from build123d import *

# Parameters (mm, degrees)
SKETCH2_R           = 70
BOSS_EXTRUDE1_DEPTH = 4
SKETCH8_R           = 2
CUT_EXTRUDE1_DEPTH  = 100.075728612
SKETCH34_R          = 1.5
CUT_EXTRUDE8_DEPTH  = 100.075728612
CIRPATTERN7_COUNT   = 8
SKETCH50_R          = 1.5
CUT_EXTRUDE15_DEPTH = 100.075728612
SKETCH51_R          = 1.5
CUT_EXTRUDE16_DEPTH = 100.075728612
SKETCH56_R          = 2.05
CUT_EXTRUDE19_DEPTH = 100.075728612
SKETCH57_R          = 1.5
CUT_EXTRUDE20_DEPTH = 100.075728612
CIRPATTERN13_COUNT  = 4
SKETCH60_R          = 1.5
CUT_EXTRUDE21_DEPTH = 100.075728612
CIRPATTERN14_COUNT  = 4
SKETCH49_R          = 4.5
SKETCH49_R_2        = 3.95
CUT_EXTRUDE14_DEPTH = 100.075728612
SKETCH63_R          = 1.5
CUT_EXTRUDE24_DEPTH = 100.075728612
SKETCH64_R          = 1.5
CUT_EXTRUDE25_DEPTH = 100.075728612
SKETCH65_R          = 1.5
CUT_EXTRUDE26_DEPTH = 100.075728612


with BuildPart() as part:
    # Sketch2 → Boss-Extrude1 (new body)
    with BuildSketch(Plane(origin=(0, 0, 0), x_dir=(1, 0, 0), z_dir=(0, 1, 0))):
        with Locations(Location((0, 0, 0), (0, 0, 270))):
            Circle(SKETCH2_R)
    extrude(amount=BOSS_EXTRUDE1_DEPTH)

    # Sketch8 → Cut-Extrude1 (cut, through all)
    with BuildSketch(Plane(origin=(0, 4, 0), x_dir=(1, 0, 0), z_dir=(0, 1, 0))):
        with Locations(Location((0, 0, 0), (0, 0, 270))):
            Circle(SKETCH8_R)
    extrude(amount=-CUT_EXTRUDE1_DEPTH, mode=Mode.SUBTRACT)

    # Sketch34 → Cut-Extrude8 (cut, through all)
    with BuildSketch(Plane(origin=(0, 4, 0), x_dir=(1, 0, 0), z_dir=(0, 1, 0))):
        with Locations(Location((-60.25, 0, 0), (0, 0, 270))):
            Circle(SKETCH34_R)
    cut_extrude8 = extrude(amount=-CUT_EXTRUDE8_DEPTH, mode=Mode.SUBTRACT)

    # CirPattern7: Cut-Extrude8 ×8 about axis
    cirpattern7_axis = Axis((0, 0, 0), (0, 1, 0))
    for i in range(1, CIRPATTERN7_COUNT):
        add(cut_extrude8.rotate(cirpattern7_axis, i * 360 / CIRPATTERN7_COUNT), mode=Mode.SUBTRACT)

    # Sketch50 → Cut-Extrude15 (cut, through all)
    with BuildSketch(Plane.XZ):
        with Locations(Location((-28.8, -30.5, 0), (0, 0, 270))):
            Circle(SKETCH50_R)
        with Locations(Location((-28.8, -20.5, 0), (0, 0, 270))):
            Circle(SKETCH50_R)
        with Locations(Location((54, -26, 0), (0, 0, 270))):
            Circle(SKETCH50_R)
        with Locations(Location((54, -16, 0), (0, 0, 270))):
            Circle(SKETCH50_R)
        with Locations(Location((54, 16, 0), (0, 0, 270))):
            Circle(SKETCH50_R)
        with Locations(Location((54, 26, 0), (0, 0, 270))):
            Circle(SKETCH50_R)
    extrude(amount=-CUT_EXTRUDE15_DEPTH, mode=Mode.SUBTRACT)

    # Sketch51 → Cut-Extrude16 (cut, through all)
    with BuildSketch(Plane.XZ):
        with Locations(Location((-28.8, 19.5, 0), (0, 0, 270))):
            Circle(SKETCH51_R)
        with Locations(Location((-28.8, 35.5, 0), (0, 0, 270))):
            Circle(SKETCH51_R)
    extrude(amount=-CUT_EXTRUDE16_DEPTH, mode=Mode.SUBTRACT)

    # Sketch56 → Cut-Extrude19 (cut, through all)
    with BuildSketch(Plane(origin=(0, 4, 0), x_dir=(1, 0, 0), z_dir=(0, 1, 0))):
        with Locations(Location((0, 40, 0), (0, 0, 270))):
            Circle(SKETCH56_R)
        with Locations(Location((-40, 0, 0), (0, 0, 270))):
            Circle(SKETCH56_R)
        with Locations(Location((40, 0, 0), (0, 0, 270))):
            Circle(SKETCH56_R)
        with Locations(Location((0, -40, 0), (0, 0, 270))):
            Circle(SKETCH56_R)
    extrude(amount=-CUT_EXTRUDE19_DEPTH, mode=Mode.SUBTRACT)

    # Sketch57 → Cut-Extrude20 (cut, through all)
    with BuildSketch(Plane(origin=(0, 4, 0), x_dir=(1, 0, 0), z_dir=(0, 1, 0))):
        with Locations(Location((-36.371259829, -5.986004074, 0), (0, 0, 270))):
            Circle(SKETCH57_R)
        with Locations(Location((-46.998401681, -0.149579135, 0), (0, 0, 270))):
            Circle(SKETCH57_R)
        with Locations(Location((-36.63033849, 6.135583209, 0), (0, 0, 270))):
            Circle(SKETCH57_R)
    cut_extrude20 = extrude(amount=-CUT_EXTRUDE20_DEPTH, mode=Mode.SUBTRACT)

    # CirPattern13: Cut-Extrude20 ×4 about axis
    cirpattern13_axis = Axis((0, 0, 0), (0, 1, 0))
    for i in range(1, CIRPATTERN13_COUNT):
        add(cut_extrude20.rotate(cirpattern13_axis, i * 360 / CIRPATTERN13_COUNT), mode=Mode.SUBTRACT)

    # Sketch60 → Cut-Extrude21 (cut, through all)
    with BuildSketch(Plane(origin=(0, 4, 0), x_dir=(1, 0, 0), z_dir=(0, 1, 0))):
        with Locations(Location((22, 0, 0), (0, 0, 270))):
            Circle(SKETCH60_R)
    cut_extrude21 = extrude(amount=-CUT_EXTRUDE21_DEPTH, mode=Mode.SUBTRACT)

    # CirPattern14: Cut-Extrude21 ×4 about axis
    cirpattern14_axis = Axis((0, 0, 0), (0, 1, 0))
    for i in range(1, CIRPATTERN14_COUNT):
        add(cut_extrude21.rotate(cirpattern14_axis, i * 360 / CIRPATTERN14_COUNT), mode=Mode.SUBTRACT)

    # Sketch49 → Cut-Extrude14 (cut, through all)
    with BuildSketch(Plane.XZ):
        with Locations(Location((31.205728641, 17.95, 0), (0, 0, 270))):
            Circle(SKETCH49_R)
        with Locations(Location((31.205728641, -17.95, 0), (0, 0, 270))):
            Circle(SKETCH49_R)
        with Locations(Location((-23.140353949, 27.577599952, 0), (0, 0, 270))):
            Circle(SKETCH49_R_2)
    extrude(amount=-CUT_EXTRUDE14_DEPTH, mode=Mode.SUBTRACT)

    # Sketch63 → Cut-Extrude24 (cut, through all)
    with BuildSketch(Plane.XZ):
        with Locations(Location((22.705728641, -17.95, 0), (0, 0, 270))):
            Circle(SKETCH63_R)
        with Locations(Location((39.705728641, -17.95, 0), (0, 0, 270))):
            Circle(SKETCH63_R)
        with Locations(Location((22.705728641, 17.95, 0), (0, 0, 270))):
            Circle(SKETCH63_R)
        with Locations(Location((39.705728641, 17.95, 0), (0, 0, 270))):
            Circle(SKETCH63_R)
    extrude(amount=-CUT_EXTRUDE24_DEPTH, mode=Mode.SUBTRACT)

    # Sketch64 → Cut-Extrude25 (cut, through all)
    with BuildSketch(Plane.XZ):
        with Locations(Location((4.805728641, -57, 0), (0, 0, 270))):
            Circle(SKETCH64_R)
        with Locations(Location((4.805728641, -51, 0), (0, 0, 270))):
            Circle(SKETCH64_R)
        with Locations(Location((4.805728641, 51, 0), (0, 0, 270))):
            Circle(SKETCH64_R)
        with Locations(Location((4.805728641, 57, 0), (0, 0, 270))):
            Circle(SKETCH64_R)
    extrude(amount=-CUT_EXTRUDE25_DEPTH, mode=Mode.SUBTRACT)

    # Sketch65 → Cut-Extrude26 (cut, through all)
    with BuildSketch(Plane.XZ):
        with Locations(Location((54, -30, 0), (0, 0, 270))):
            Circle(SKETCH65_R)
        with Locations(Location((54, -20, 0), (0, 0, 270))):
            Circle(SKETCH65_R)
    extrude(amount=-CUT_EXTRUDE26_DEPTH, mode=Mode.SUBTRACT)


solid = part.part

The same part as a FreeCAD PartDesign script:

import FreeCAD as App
import Part
import Sketcher
from FreeCAD import Vector
Q = App.Units.Quantity

doc = App.newDocument("Part")
body = doc.addObject("PartDesign::Body", "Body")

# Sketch on XZ plane
sketch1 = body.newObject("Sketcher::SketchObject", "Sketch")
sketch1.AttachmentSupport = (doc.getObject("XZ_Plane"), [""])
sketch1.MapMode = "FlatFace"
sketch1.addGeometry(Part.Circle(Vector(0, 0, 0), Vector(0, 0, 1), 70), False)
sketch1.addConstraint(Sketcher.Constraint("Coincident", 0, 3, -1, 1))
sketch1.addConstraint(Sketcher.Constraint("Diameter", 0, Q("140 mm")))
pad1 = body.newObject("PartDesign::Pad", "Pad")
pad1.Profile = sketch1
pad1.Length = 4
pad1.Reversed = True

# Sketch on XZ plane
sketch2 = body.newObject("Sketcher::SketchObject", "Sketch001")
sketch2.AttachmentSupport = (doc.getObject("XZ_Plane"), [""])
sketch2.MapMode = "FlatFace"
sketch2.AttachmentOffset = App.Placement(Vector(0, 0, -4), App.Rotation())
sketch2.addGeometry(Part.Circle(Vector(0, 0, 0), Vector(0, 0, 1), 2), False)
sketch2.addConstraint(Sketcher.Constraint("Coincident", 0, 3, -1, 1))
sketch2.addConstraint(Sketcher.Constraint("Diameter", 0, Q("4 mm")))
pocket1 = body.newObject("PartDesign::Pocket", "Pocket")
pocket1.Profile = sketch2
pocket1.Type = "ThroughAll"
pocket1.Reversed = True

# Sketch on XZ plane
sketch3 = body.newObject("Sketcher::SketchObject", "Sketch002")
sketch3.AttachmentSupport = (doc.getObject("XZ_Plane"), [""])
sketch3.MapMode = "FlatFace"
sketch3.AttachmentOffset = App.Placement(Vector(0, 0, -4), App.Rotation())
sketch3.addGeometry(Part.Circle(Vector(-60.25, 0, 0), Vector(0, 0, 1), 1.5), False)
sketch3.addConstraint(Sketcher.Constraint("PointOnObject", 0, 3, -1))
sketch3.addConstraint(Sketcher.Constraint("Diameter", 0, Q("3 mm")))
sketch3.addConstraint(Sketcher.Constraint("DistanceX", 0, 3, -1, 1, Q("60.25 mm")))
pocket2 = body.newObject("PartDesign::Pocket", "Pocket001")
pocket2.Profile = sketch3
pocket2.Type = "ThroughAll"
pocket2.Reversed = True
doc.recompute()

polarpattern = body.newObject("PartDesign::PolarPattern", "PolarPattern")
polarpattern.Originals = [pocket2]
polarpattern.Axis = (doc.getObject("Y_Axis"), [""])
polarpattern.Angle = 360
polarpattern.Occurrences = 8
body.Tip = polarpattern

# Sketch on XZ plane
sketch4 = body.newObject("Sketcher::SketchObject", "Sketch003")
sketch4.AttachmentSupport = (doc.getObject("XZ_Plane"), [""])
sketch4.MapMode = "FlatFace"
sketch4.addGeometry(Part.Circle(Vector(-28.8, -30.5, 0), Vector(0, 0, 1), 1.5), False)
sketch4.addGeometry(Part.Circle(Vector(-28.8, -20.5, 0), Vector(0, 0, 1), 1.5), False)
sketch4.addGeometry(Part.Circle(Vector(54, -26, 0), Vector(0, 0, 1), 1.5), False)
sketch4.addGeometry(Part.Circle(Vector(54, -16, 0), Vector(0, 0, 1), 1.5), False)
sketch4.addGeometry(Part.Circle(Vector(54, 16, 0), Vector(0, 0, 1), 1.5), False)
sketch4.addGeometry(Part.Circle(Vector(54, 26, 0), Vector(0, 0, 1), 1.5), False)
sketch4.addConstraint(Sketcher.Constraint("Equal", 0, 1))
sketch4.addConstraint(Sketcher.Constraint("Equal", 1, 2))
sketch4.addConstraint(Sketcher.Constraint("Equal", 2, 3))
sketch4.addConstraint(Sketcher.Constraint("Equal", 3, 4))
sketch4.addConstraint(Sketcher.Constraint("Equal", 4, 5))
sketch4.addConstraint(Sketcher.Constraint("Symmetric", 3, 3, 4, 3, -1))
sketch4.addConstraint(Sketcher.Constraint("Symmetric", 2, 3, 5, 3, -1))
sketch4.addConstraint(Sketcher.Constraint("Vertical", 0, 3, 1, 3))
sketch4.addConstraint(Sketcher.Constraint("Vertical", 2, 3, 3, 3))
sketch4.addConstraint(Sketcher.Constraint("Diameter", 0, Q("3 mm")))
sketch4.addConstraint(Sketcher.Constraint("DistanceX", -1, 1, 2, 3, Q("54 mm")))
sketch4.addConstraint(Sketcher.Constraint("DistanceY", 2, 3, -1, 1, Q("26 mm")))
sketch4.addConstraint(Sketcher.Constraint("DistanceY", 3, 3, -1, 1, Q("16 mm")))
sketch4.addConstraint(Sketcher.Constraint("DistanceY", 0, 3, 1, 3, Q("10 mm")))
sketch4.addConstraint(Sketcher.Constraint("DistanceX", 0, 3, -1, 1, Q("28.8 mm")))
sketch4.addConstraint(Sketcher.Constraint("DistanceY", 0, 3, -1, 1, Q("30.5 mm")))
pocket3 = body.newObject("PartDesign::Pocket", "Pocket002")
pocket3.Profile = sketch4
pocket3.Type = "ThroughAll"

# Sketch on XZ plane
sketch5 = body.newObject("Sketcher::SketchObject", "Sketch004")
sketch5.AttachmentSupport = (doc.getObject("XZ_Plane"), [""])
sketch5.MapMode = "FlatFace"
sketch5.addGeometry(Part.Circle(Vector(-28.8, 19.5, 0), Vector(0, 0, 1), 1.5), False)
sketch5.addGeometry(Part.Circle(Vector(-28.8, 35.5, 0), Vector(0, 0, 1), 1.5), False)
sketch5.addConstraint(Sketcher.Constraint("Equal", 0, 1))
sketch5.addConstraint(Sketcher.Constraint("Vertical", 0, 3, 1, 3))
sketch5.addConstraint(Sketcher.Constraint("Diameter", 0, Q("3 mm")))
sketch5.addConstraint(Sketcher.Constraint("DistanceY", 0, 3, 1, 3, Q("16 mm")))
sketch5.addConstraint(Sketcher.Constraint("DistanceX", 0, 3, -1, 1, Q("28.8 mm")))
sketch5.addConstraint(Sketcher.Constraint("DistanceY", -1, 1, 0, 3, Q("19.5 mm")))
pocket4 = body.newObject("PartDesign::Pocket", "Pocket003")
pocket4.Profile = sketch5
pocket4.Type = "ThroughAll"

# Sketch on XZ plane
sketch6 = body.newObject("Sketcher::SketchObject", "Sketch005")
sketch6.AttachmentSupport = (doc.getObject("XZ_Plane"), [""])
sketch6.MapMode = "FlatFace"
sketch6.AttachmentOffset = App.Placement(Vector(0, 0, -4), App.Rotation())
sketch6.addGeometry(Part.Circle(Vector(0, -40, 0), Vector(0, 0, 1), 2.05), False)
sketch6.addGeometry(Part.Circle(Vector(-40, 0, 0), Vector(0, 0, 1), 2.05), False)
sketch6.addGeometry(Part.Circle(Vector(40, 0, 0), Vector(0, 0, 1), 2.05), False)
sketch6.addGeometry(Part.Circle(Vector(0, 40, 0), Vector(0, 0, 1), 2.05), False)
sketch6.addConstraint(Sketcher.Constraint("Equal", 0, 1))
sketch6.addConstraint(Sketcher.Constraint("Equal", 1, 2))
sketch6.addConstraint(Sketcher.Constraint("Equal", 2, 3))
sketch6.addConstraint(Sketcher.Constraint("Symmetric", 1, 3, 2, 3, -1, 1))
sketch6.addConstraint(Sketcher.Constraint("Symmetric", 0, 3, 3, 3, -1, 1))
sketch6.addConstraint(Sketcher.Constraint("PointOnObject", 0, 3, -2))
sketch6.addConstraint(Sketcher.Constraint("PointOnObject", 1, 3, -1))
sketch6.addConstraint(Sketcher.Constraint("Diameter", 0, Q("4.1 mm")))
sketch6.addConstraint(Sketcher.Constraint("DistanceY", 0, 3, -1, 1, Q("40 mm")))
sketch6.addConstraint(Sketcher.Constraint("DistanceX", 1, 3, -1, 1, Q("40 mm")))
pocket5 = body.newObject("PartDesign::Pocket", "Pocket004")
pocket5.Profile = sketch6
pocket5.Type = "ThroughAll"
pocket5.Reversed = True

# Sketch on XZ plane
sketch7 = body.newObject("Sketcher::SketchObject", "Sketch006")
sketch7.AttachmentSupport = (doc.getObject("XZ_Plane"), [""])
sketch7.MapMode = "FlatFace"
sketch7.AttachmentOffset = App.Placement(Vector(0, 0, -4), App.Rotation())
sketch7.addGeometry(Part.Circle(Vector(-36.37126, 5.986004, 0), Vector(0, 0, 1), 1.5), False)
sketch7.addGeometry(Part.Circle(Vector(-46.998402, 0.149579, 0), Vector(0, 0, 1), 1.5), False)
sketch7.addGeometry(Part.Circle(Vector(-36.630338, -6.135583, 0), Vector(0, 0, 1), 1.5), False)
sketch7.addConstraint(Sketcher.Constraint("Equal", 0, 1))
sketch7.addConstraint(Sketcher.Constraint("Equal", 1, 2))
sketch7.addConstraint(Sketcher.Constraint("Diameter", 0, Q("3 mm")))
sketch7.addConstraint(Sketcher.Constraint("DistanceX", 1, 3, -1, 1, Q("46.998402 mm")))
sketch7.addConstraint(Sketcher.Constraint("DistanceX", 0, 3, -1, 1, Q("36.37126 mm")))
sketch7.addConstraint(Sketcher.Constraint("DistanceY", -1, 1, 1, 3, Q("0.149579 mm")))
sketch7.addConstraint(Sketcher.Constraint("DistanceX", 2, 3, -1, 1, Q("36.630338 mm")))
sketch7.addConstraint(Sketcher.Constraint("DistanceY", -1, 1, 0, 3, Q("5.986004 mm")))
sketch7.addConstraint(Sketcher.Constraint("DistanceY", 2, 3, -1, 1, Q("6.135583 mm")))
pocket6 = body.newObject("PartDesign::Pocket", "Pocket005")
pocket6.Profile = sketch7
pocket6.Type = "ThroughAll"
pocket6.Reversed = True
doc.recompute()

polarpattern2 = body.newObject("PartDesign::PolarPattern", "PolarPattern001")
polarpattern2.Originals = [pocket6]
polarpattern2.Axis = (doc.getObject("Y_Axis"), [""])
polarpattern2.Angle = 360
polarpattern2.Occurrences = 4
body.Tip = polarpattern2

# Sketch on XZ plane
sketch8 = body.newObject("Sketcher::SketchObject", "Sketch007")
sketch8.AttachmentSupport = (doc.getObject("XZ_Plane"), [""])
sketch8.MapMode = "FlatFace"
sketch8.AttachmentOffset = App.Placement(Vector(0, 0, -4), App.Rotation())
sketch8.addGeometry(Part.Circle(Vector(22, 0, 0), Vector(0, 0, 1), 1.5), False)
sketch8.addConstraint(Sketcher.Constraint("PointOnObject", 0, 3, -1))
sketch8.addConstraint(Sketcher.Constraint("Diameter", 0, Q("3 mm")))
sketch8.addConstraint(Sketcher.Constraint("DistanceX", -1, 1, 0, 3, Q("22 mm")))
pocket7 = body.newObject("PartDesign::Pocket", "Pocket006")
pocket7.Profile = sketch8
pocket7.Type = "ThroughAll"
pocket7.Reversed = True
doc.recompute()

polarpattern3 = body.newObject("PartDesign::PolarPattern", "PolarPattern002")
polarpattern3.Originals = [pocket7]
polarpattern3.Axis = (doc.getObject("Y_Axis"), [""])
polarpattern3.Angle = 360
polarpattern3.Occurrences = 4
body.Tip = polarpattern3

# Sketch on XZ plane
sketch9 = body.newObject("Sketcher::SketchObject", "Sketch008")
sketch9.AttachmentSupport = (doc.getObject("XZ_Plane"), [""])
sketch9.MapMode = "FlatFace"
sketch9.addGeometry(Part.Circle(Vector(31.205729, 17.95, 0), Vector(0, 0, 1), 4.5), False)
sketch9.addGeometry(Part.Circle(Vector(31.205729, -17.95, 0), Vector(0, 0, 1), 4.5), False)
sketch9.addGeometry(Part.Circle(Vector(-23.140354, 27.5776, 0), Vector(0, 0, 1), 3.95), False)
sketch9.addConstraint(Sketcher.Constraint("Equal", 0, 1))
sketch9.addConstraint(Sketcher.Constraint("Symmetric", 0, 3, 1, 3, -1))
sketch9.addConstraint(Sketcher.Constraint("Diameter", 0, Q("9 mm")))
sketch9.addConstraint(Sketcher.Constraint("Diameter", 2, Q("7.9 mm")))
sketch9.addConstraint(Sketcher.Constraint("DistanceY", 1, 3, 0, 3, Q("35.9 mm")))
sketch9.addConstraint(Sketcher.Constraint("DistanceY", -1, 1, 2, 3, Q("27.5776 mm")))
sketch9.addConstraint(Sketcher.Constraint("DistanceX", -1, 1, 0, 3, Q("31.205729 mm")))
sketch9.addConstraint(Sketcher.Constraint("DistanceX", 2, 3, -1, 1, Q("23.140354 mm")))
pocket8 = body.newObject("PartDesign::Pocket", "Pocket007")
pocket8.Profile = sketch9
pocket8.Type = "ThroughAll"

# Sketch on XZ plane
sketch10 = body.newObject("Sketcher::SketchObject", "Sketch009")
sketch10.AttachmentSupport = (doc.getObject("XZ_Plane"), [""])
sketch10.MapMode = "FlatFace"
sketch10.addGeometry(Part.Circle(Vector(22.705729, -17.95, 0), Vector(0, 0, 1), 1.5), False)
sketch10.addGeometry(Part.Circle(Vector(39.705729, -17.95, 0), Vector(0, 0, 1), 1.5), False)
sketch10.addGeometry(Part.Circle(Vector(22.705729, 17.95, 0), Vector(0, 0, 1), 1.5), False)
sketch10.addGeometry(Part.Circle(Vector(39.705729, 17.95, 0), Vector(0, 0, 1), 1.5), False)
sketch10.addConstraint(Sketcher.Constraint("Equal", 0, 1))
sketch10.addConstraint(Sketcher.Constraint("Equal", 1, 2))
sketch10.addConstraint(Sketcher.Constraint("Equal", 2, 3))
sketch10.addConstraint(Sketcher.Constraint("Symmetric", 0, 3, 2, 3, -1))
sketch10.addConstraint(Sketcher.Constraint("Symmetric", 1, 3, 3, 3, -1))
sketch10.addConstraint(Sketcher.Constraint("Horizontal", 0, 3, 1, 3))
sketch10.addConstraint(Sketcher.Constraint("Diameter", 0, Q("3 mm")))
sketch10.addConstraint(Sketcher.Constraint("DistanceX", 0, 3, 1, 3, Q("17 mm")))
sketch10.addConstraint(Sketcher.Constraint("DistanceY", 0, 3, 2, 3, Q("35.9 mm")))
sketch10.addConstraint(Sketcher.Constraint("DistanceX", -1, 1, 0, 3, Q("22.705729 mm")))
pocket9 = body.newObject("PartDesign::Pocket", "Pocket008")
pocket9.Profile = sketch10
pocket9.Type = "ThroughAll"

# Sketch on XZ plane
sketch11 = body.newObject("Sketcher::SketchObject", "Sketch010")
sketch11.AttachmentSupport = (doc.getObject("XZ_Plane"), [""])
sketch11.MapMode = "FlatFace"
sketch11.addGeometry(Part.Circle(Vector(4.805729, -57, 0), Vector(0, 0, 1), 1.5), False)
sketch11.addGeometry(Part.Circle(Vector(4.805729, -51, 0), Vector(0, 0, 1), 1.5), False)
sketch11.addGeometry(Part.Circle(Vector(4.805729, 51, 0), Vector(0, 0, 1), 1.5), False)
sketch11.addGeometry(Part.Circle(Vector(4.805729, 57, 0), Vector(0, 0, 1), 1.5), False)
sketch11.addConstraint(Sketcher.Constraint("Equal", 0, 1))
sketch11.addConstraint(Sketcher.Constraint("Equal", 1, 2))
sketch11.addConstraint(Sketcher.Constraint("Equal", 2, 3))
sketch11.addConstraint(Sketcher.Constraint("Symmetric", 1, 3, 2, 3, -1))
sketch11.addConstraint(Sketcher.Constraint("Symmetric", 0, 3, 3, 3, -1))
sketch11.addConstraint(Sketcher.Constraint("Vertical", 0, 3, 1, 3))
sketch11.addConstraint(Sketcher.Constraint("Diameter", 0, Q("3 mm")))
sketch11.addConstraint(Sketcher.Constraint("DistanceY", 0, 3, -1, 1, Q("57 mm")))
sketch11.addConstraint(Sketcher.Constraint("DistanceY", 1, 3, -1, 1, Q("51 mm")))
sketch11.addConstraint(Sketcher.Constraint("DistanceX", -1, 1, 0, 3, Q("4.805729 mm")))
pocket10 = body.newObject("PartDesign::Pocket", "Pocket009")
pocket10.Profile = sketch11
pocket10.Type = "ThroughAll"

# Sketch on XZ plane
sketch12 = body.newObject("Sketcher::SketchObject", "Sketch011")
sketch12.AttachmentSupport = (doc.getObject("XZ_Plane"), [""])
sketch12.MapMode = "FlatFace"
sketch12.addGeometry(Part.Circle(Vector(54, -30, 0), Vector(0, 0, 1), 1.5), False)
sketch12.addGeometry(Part.Circle(Vector(54, -20, 0), Vector(0, 0, 1), 1.5), False)
sketch12.addConstraint(Sketcher.Constraint("Equal", 0, 1))
sketch12.addConstraint(Sketcher.Constraint("Vertical", 0, 3, 1, 3))
sketch12.addConstraint(Sketcher.Constraint("Diameter", 0, Q("3 mm")))
sketch12.addConstraint(Sketcher.Constraint("DistanceX", -1, 1, 0, 3, Q("54 mm")))
sketch12.addConstraint(Sketcher.Constraint("DistanceY", 0, 3, -1, 1, Q("30 mm")))
sketch12.addConstraint(Sketcher.Constraint("DistanceY", 1, 3, -1, 1, Q("20 mm")))
pocket11 = body.newObject("PartDesign::Pocket", "Pocket010")
pocket11.Profile = sketch12
pocket11.Type = "ThroughAll"

doc.recompute()
